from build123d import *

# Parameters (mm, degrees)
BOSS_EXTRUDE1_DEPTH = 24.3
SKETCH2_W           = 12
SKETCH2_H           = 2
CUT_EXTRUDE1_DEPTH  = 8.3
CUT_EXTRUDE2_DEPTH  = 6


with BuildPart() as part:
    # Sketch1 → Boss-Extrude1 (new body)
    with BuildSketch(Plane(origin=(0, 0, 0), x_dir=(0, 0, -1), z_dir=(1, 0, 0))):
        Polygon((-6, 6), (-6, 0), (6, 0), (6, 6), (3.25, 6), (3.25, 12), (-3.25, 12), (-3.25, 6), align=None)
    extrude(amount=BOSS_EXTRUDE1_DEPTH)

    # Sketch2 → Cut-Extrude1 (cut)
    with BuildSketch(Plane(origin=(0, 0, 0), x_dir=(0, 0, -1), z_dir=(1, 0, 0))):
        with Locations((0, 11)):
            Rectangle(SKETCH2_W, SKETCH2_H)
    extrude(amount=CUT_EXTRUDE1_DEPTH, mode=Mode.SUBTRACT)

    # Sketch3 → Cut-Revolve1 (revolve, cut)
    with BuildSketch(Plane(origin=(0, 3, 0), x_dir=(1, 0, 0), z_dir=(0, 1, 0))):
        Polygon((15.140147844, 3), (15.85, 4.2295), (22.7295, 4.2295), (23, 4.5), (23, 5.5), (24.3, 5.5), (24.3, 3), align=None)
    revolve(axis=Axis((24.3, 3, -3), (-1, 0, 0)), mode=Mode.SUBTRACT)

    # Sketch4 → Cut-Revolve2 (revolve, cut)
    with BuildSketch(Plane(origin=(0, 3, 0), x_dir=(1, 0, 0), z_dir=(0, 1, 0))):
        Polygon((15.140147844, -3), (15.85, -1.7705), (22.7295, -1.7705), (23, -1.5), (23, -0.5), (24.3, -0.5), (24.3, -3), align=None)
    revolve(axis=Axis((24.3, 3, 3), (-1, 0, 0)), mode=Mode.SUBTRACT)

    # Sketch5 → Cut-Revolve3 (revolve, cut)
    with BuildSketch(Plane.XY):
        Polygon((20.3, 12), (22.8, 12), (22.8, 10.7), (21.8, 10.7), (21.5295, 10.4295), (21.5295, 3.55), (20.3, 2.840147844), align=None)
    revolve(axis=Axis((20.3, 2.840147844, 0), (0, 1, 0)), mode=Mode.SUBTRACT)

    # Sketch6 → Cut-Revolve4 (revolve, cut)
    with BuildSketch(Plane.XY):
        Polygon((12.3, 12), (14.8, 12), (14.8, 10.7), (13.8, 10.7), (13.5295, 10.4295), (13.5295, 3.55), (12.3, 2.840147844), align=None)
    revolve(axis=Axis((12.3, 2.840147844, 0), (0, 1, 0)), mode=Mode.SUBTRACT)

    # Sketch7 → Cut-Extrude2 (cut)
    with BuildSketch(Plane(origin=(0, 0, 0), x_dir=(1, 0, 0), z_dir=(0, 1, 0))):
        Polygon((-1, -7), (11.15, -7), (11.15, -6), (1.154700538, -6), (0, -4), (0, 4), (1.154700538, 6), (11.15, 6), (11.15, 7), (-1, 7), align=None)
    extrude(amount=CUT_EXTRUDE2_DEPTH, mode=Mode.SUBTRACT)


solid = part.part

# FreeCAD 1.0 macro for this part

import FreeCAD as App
import Part
import Sketcher
Q = App.Units.Quantity


def add_polygon(sketch, points):
    """Adds a closed chain of lines whose ends are joined by coincident constraints."""
    first, n = sketch.GeometryCount, len(points)
    for a, b in zip(points, points[1:] + points[:1]):
        sketch.addGeometry(Part.LineSegment(App.Vector(*a, 0), App.Vector(*b, 0)), False)
    for i in range(n):
        sketch.addConstraint(Sketcher.Constraint("Coincident", first + i, 2, first + (i + 1) % n, 1))

doc = App.newDocument("Part")
params = doc.addObject("Spreadsheet::Sheet", "Params")
for row, (alias, value) in enumerate([
    ("sketch1_width", "6 mm"),
    ("sketch1_height", "12 mm"),
    ("sketch1_height2", "6.5 mm"),
    ("pad1_length", "24.3 mm"),
    ("sketch2_width", "2 mm"),
    ("sketch2_height", "12 mm"),
    ("pocket1_length", "8.3 mm"),
    ("sketch3_height", "1 mm"),
    ("sketch3_width", "1.3 mm"),
    ("sketch3_height2", "2.5 mm"),
    ("groove_angle", "360 deg"),
    ("sketch4_height", "1 mm"),
    ("sketch4_width", "1.3 mm"),
    ("sketch4_height2", "2.5 mm"),
    ("groove2_angle", "360 deg"),
    ("sketch5_width", "1 mm"),
    ("sketch5_width2", "2.5 mm"),
    ("sketch5_height", "1.3 mm"),
    ("groove3_angle", "360 deg"),
    ("sketch6_width", "1 mm"),
    ("sketch6_width2", "2.5 mm"),
    ("sketch6_height", "1.3 mm"),
    ("groove4_angle", "360 deg"),
    ("sketch7_height", "1 mm"),
    ("sketch7_height2", "8 mm"),
    ("sketch7_height3", "14 mm"),
    ("sketch7_width", "12.15 mm"),
    ("pocket2_length", "6 mm"),
], start=1):
    params.set(f"A{row}", alias)
    params.set(f"B{row}", "=" + value)
    params.setAlias(f"B{row}", alias)

body = doc.addObject("PartDesign::Body", "Body")

sketch1 = doc.addObject("Sketcher::SketchObject", "Sketch")
body.addObject(sketch1)
sketch1.AttachmentSupport = (doc.YZ_Plane, [""])
sketch1.MapMode = "FlatFace"
add_polygon(sketch1, [(6, 6), (0, 6), (0, -6), (6, -6), (6, -3.2), (12, -3.2), (12, 3.2), (6, 3.2)])
sketch1.addConstraint(Sketcher.Constraint("Horizontal", 0))
sketch1.addConstraint(Sketcher.Constraint("Vertical", 1))
sketch1.addConstraint(Sketcher.Constraint("Horizontal", 2))
sketch1.addConstraint(Sketcher.Constraint("Vertical", 3))
sketch1.addConstraint(Sketcher.Constraint("Horizontal", 4))
sketch1.addConstraint(Sketcher.Constraint("Vertical", 5))
sketch1.addConstraint(Sketcher.Constraint("Horizontal", 6))
sketch1.addConstraint(Sketcher.Constraint("Vertical", 7))
sketch1.addConstraint(Sketcher.Constraint("Symmetric", 0, 2, 1, 2, -1, 1))
sketch1.addConstraint(Sketcher.Constraint("Symmetric", 3, 2, 6, 2, -1))
sketch1.addConstraint(Sketcher.Constraint("Equal", 2, 4))
sketch1.addConstraint(Sketcher.Constraint("DistanceX", 0, 2, 0, 1, 6.0))
sketch1.addConstraint(Sketcher.Constraint("DistanceY", 1, 2, 1, 1, 12.0))
sketch1.addConstraint(Sketcher.Constraint("DistanceY", 5, 1, 5, 2, 6.5))
sketch1.setExpression("Constraints[19]", "Params.sketch1_width")
sketch1.setExpression("Constraints[20]", "Params.sketch1_height")
sketch1.setExpression("Constraints[21]", "Params.sketch1_height2")
pad1 = doc.addObject("PartDesign::Pad", "Pad")
body.addObject(pad1)
pad1.Profile = sketch1
pad1.setExpression("Length", "Params.pad1_length")

sketch2 = doc.addObject("Sketcher::SketchObject", "Sketch001")
body.addObject(sketch2)
sketch2.AttachmentSupport = (doc.YZ_Plane, [""])
sketch2.MapMode = "FlatFace"
add_polygon(sketch2, [(12, 6), (10, 6), (10, -6), (12, -6)])
sketch2.addConstraint(Sketcher.Constraint("Horizontal", 0))
sketch2.addConstraint(Sketcher.Constraint("Vertical", 1))
sketch2.addConstraint(Sketcher.Constraint("Horizontal", 2))
sketch2.addConstraint(Sketcher.Constraint("Vertical", 3))
sketch2.addConstraint(Sketcher.Constraint("DistanceX", 0, 2, 0, 1, 2.0))
sketch2.addConstraint(Sketcher.Constraint("DistanceY", 1, 2, 1, 1, 12.0))
sketch2.addConstraint(Sketcher.Constraint("DistanceX", -1, 1, 0, 2, 10.0))
sketch2.addConstraint(Sketcher.Constraint("DistanceY", -1, 1, 0, 2, 6.0))
sketch2.setExpression("Constraints[8]", "Params.sketch2_width")
sketch2.setExpression("Constraints[9]", "Params.sketch2_height")
pocket1 = doc.addObject("PartDesign::Pocket", "Pocket")
body.addObject(pocket1)
pocket1.Profile = sketch2
pocket1.setExpression("Length", "Params.pocket1_length")
pocket1.Reversed = True

sketch3 = doc.addObject("Sketcher::SketchObject", "Sketch002")
body.addObject(sketch3)
sketch3.AttachmentSupport = (doc.XZ_Plane, [""])
sketch3.MapMode = "FlatFace"
sketch3.AttachmentOffset = App.Placement(App.Vector(0, 0, -3), App.Rotation())
add_polygon(sketch3, [(15.85, -4.23), (15.14, -3), (24.3, -3), (24.3, -5.5), (23, -5.5), (23, -4.5), (22.73, -4.23)])
sketch3.addGeometry(Part.LineSegment(App.Vector(24.3, -3, 0), App.Vector(15.14, -3, 0)), True)
sketch3.addConstraint(Sketcher.Constraint("Horizontal", 1))
sketch3.addConstraint(Sketcher.Constraint("Vertical", 2))
sketch3.addConstraint(Sketcher.Constraint("Horizontal", 3))
sketch3.addConstraint(Sketcher.Constraint("Vertical", 4))
sketch3.addConstraint(Sketcher.Constraint("Horizontal", 6))
sketch3.addConstraint(Sketcher.Constraint("Horizontal", 7))
sketch3.addConstraint(Sketcher.Constraint("Coincident", 7, 1, 1, 2))
sketch3.addConstraint(Sketcher.Constraint("Equal", 1, 7))
sketch3.addConstraint(Sketcher.Constraint("DistanceY", 4, 1, 4, 2, 1.0))
sketch3.addConstraint(Sketcher.Constraint("Angle", 0, Q("120 deg")))
sketch3.addConstraint(Sketcher.Constraint("Angle", 5, Q("135 deg")))
sketch3.addConstraint(Sketcher.Constraint("DistanceX", 3, 2, 3, 1, 1.3))
sketch3.addConstraint(Sketcher.Constraint("DistanceY", 2, 2, 2, 1, 2.5))
sketch3.addConstraint(Sketcher.Constraint("DistanceY", 0, 2, -1, 1, 3.0))
sketch3.addConstraint(Sketcher.Constraint("DistanceX", -1, 1, 3, 2, 23.0))
sketch3.addConstraint(Sketcher.Constraint("DistanceX", -1, 1, 6, 2, 15.85))
sketch3.addConstraint(Sketcher.Constraint("DistanceX", 6, 2, 6, 1, 6.8795))
sketch3.setExpression("Constraints[15]", "Params.sketch3_height")
sketch3.setExpression("Constraints[18]", "Params.sketch3_width")
sketch3.setExpression("Constraints[19]", "Params.sketch3_height2")
groove = doc.addObject("PartDesign::Groove", "Groove")
body.addObject(groove)
groove.Profile = sketch3
groove.ReferenceAxis = (sketch3, ["Axis0"])
groove.setExpression("Angle", "Params.groove_angle")

sketch4 = doc.addObject("Sketcher::SketchObject", "Sketch003")
body.addObject(sketch4)
sketch4.AttachmentSupport = (doc.XZ_Plane, [""])
sketch4.MapMode = "FlatFace"
sketch4.AttachmentOffset = App.Placement(App.Vector(0, 0, -3), App.Rotation())
add_polygon(sketch4, [(15.85, 1.77), (15.14, 3), (24.3, 3), (24.3, 0.5), (23, 0.5), (23, 1.5), (22.73, 1.77)])
sketch4.addGeometry(Part.LineSegment(App.Vector(24.3, 3, 0), App.Vector(15.14, 3, 0)), True)
sketch4.addConstraint(Sketcher.Constraint("Horizontal", 1))
sketch4.addConstraint(Sketcher.Constraint("Vertical", 2))
sketch4.addConstraint(Sketcher.Constraint("Horizontal", 3))
sketch4.addConstraint(Sketcher.Constraint("Vertical", 4))
sketch4.addConstraint(Sketcher.Constraint("Horizontal", 6))
sketch4.addConstraint(Sketcher.Constraint("Horizontal", 7))
sketch4.addConstraint(Sketcher.Constraint("Coincident", 7, 1, 1, 2))
sketch4.addConstraint(Sketcher.Constraint("Equal", 1, 7))
sketch4.addConstraint(Sketcher.Constraint("DistanceY", 4, 1, 4, 2, 1.0))
sketch4.addConstraint(Sketcher.Constraint("Angle", 0, Q("120 deg")))
sketch4.addConstraint(Sketcher.Constraint("Angle", 5, Q("135 deg")))
sketch4.addConstraint(Sketcher.Constraint("DistanceX", 3, 2, 3, 1, 1.3))
sketch4.addConstraint(Sketcher.Constraint("DistanceY", 2, 2, 2, 1, 2.5))
sketch4.addConstraint(Sketcher.Constraint("DistanceY", -1, 1, 0, 2, 3.0))
sketch4.addConstraint(Sketcher.Constraint("DistanceX", -1, 1, 3, 2, 23.0))
sketch4.addConstraint(Sketcher.Constraint("DistanceX", -1, 1, 6, 2, 15.85))
sketch4.addConstraint(Sketcher.Constraint("DistanceX", 6, 2, 6, 1, 6.8795))
sketch4.setExpression("Constraints[15]", "Params.sketch4_height")
sketch4.setExpression("Constraints[18]", "Params.sketch4_width")
sketch4.setExpression("Constraints[19]", "Params.sketch4_height2")
groove2 = doc.addObject("PartDesign::Groove", "Groove001")
body.addObject(groove2)
groove2.Profile = sketch4
groove2.ReferenceAxis = (sketch4, ["Axis0"])
groove2.setExpression("Angle", "Params.groove2_angle")

sketch5 = doc.addObject("Sketcher::SketchObject", "Sketch004")
body.addObject(sketch5)
sketch5.AttachmentSupport = (doc.XY_Plane, [""])
sketch5.MapMode = "FlatFace"
add_polygon(sketch5, [(22.8, 12), (20.3, 12), (20.3, 2.84), (21.53, 3.55), (21.53, 10.43), (21.8, 10.7), (22.8, 10.7)])
sketch5.addGeometry(Part.LineSegment(App.Vector(20.3, 2.84, 0), App.Vector(20.3, 12, 0)), True)
sketch5.addConstraint(Sketcher.Constraint("Horizontal", 0))
sketch5.addConstraint(Sketcher.Constraint("Vertical", 1))
sketch5.addConstraint(Sketcher.Constraint("Vertical", 3))
sketch5.addConstraint(Sketcher.Constraint("Horizontal", 5))
sketch5.addConstraint(Sketcher.Constraint("Vertical", 6))
sketch5.addConstraint(Sketcher.Constraint("Vertical", 7))
sketch5.addConstraint(Sketcher.Constraint("Coincident", 7, 1, 1, 2))
sketch5.addConstraint(Sketcher.Constraint("Horizontal", 6, 2, 7, 2))
sketch5.addConstraint(Sketcher.Constraint("DistanceX", 5, 1, 5, 2, 1.0))
sketch5.addConstraint(Sketcher.Constraint("Angle", 2, Q("30 deg")))
sketch5.addConstraint(Sketcher.Constraint("Angle", 4, Q("45 deg")))
sketch5.addConstraint(Sketcher.Constraint("DistanceX", 0, 2, 0, 1, 2.5))
sketch5.addConstraint(Sketcher.Constraint("DistanceY", 6, 1, 6, 2, 1.3))
sketch5.addConstraint(Sketcher.Constraint("DistanceY", -1, 1, 0, 2, 12.0))
sketch5.addConstraint(Sketcher.Constraint("DistanceX", -1, 1, 0, 2, 20.3))
sketch5.addConstraint(Sketcher.Constraint("DistanceY", -1, 1, 2, 2, 3.55))
sketch5.addConstraint(Sketcher.Constraint("DistanceY", 3, 1, 3, 2, 6.8795))
sketch5.setExpression("Constraints[15]", "Params.sketch5_width")
sketch5.setExpression("Constraints[18]", "Params.sketch5_width2")
sketch5.setExpression("Constraints[19]", "Params.sketch5_height")
groove3 = doc.addObject("PartDesign::Groove", "Groove002")
body.addObject(groove3)
groove3.Profile = sketch5
groove3.ReferenceAxis = (sketch5, ["Axis0"])
groove3.setExpression("Angle", "Params.groove3_angle")

sketch6 = doc.addObject("Sketcher::SketchObject", "Sketch005")
body.addObject(sketch6)
sketch6.AttachmentSupport = (doc.XY_Plane, [""])
sketch6.MapMode = "FlatFace"
add_polygon(sketch6, [(14.8, 12), (12.3, 12), (12.3, 2.84), (13.53, 3.55), (13.53, 10.43), (13.8, 10.7), (14.8, 10.7)])
sketch6.addGeometry(Part.LineSegment(App.Vector(12.3, 2.84, 0), App.Vector(12.3, 12, 0)), True)
sketch6.addConstraint(Sketcher.Constraint("Horizontal", 0))
sketch6.addConstraint(Sketcher.Constraint("Vertical", 1))
sketch6.addConstraint(Sketcher.Constraint("Vertical", 3))
sketch6.addConstraint(Sketcher.Constraint("Horizontal", 5))
sketch6.addConstraint(Sketcher.Constraint("Vertical", 6))
sketch6.addConstraint(Sketcher.Constraint("Vertical", 7))
sketch6.addConstraint(Sketcher.Constraint("Coincident", 7, 1, 1, 2))
sketch6.addConstraint(Sketcher.Constraint("Horizontal", 6, 2, 7, 2))
sketch6.addConstraint(Sketcher.Constraint("DistanceX", 5, 1, 5, 2, 1.0))
sketch6.addConstraint(Sketcher.Constraint("Angle", 2, Q("30 deg")))
sketch6.addConstraint(Sketcher.Constraint("Angle", 4, Q("45 deg")))
sketch6.addConstraint(Sketcher.Constraint("DistanceX", 0, 2, 0, 1, 2.5))
sketch6.addConstraint(Sketcher.Constraint("DistanceY", 6, 1, 6, 2, 1.3))
sketch6.addConstraint(Sketcher.Constraint("DistanceY", -1, 1, 0, 2, 12.0))
sketch6.addConstraint(Sketcher.Constraint("DistanceX", -1, 1, 0, 2, 12.3))
sketch6.addConstraint(Sketcher.Constraint("DistanceY", -1, 1, 2, 2, 3.55))
sketch6.addConstraint(Sketcher.Constraint("DistanceY", 3, 1, 3, 2, 6.8795))
sketch6.setExpression("Constraints[15]", "Params.sketch6_width")
sketch6.setExpression("Constraints[18]", "Params.sketch6_width2")
sketch6.setExpression("Constraints[19]", "Params.sketch6_height")
groove4 = doc.addObject("PartDesign::Groove", "Groove003")
body.addObject(groove4)
groove4.Profile = sketch6
groove4.ReferenceAxis = (sketch6, ["Axis0"])
groove4.setExpression("Angle", "Params.groove4_angle")

sketch7 = doc.addObject("Sketcher::SketchObject", "Sketch006")
body.addObject(sketch7)
sketch7.AttachmentSupport = (doc.XZ_Plane, [""])
sketch7.MapMode = "FlatFace"
add_polygon(sketch7, [(-1, 7), (11.2, 7), (11.2, 6), (1.2, 6), (0, 4), (0, -4), (1.2, -6), (11.2, -6), (11.2, -7), (-1, -7)])
sketch7.addConstraint(Sketcher.Constraint("Horizontal", 0))
sketch7.addConstraint(Sketcher.Constraint("Vertical", 1))
sketch7.addConstraint(Sketcher.Constraint("Horizontal", 2))
sketch7.addConstraint(Sketcher.Constraint("Vertical", 4))
sketch7.addConstraint(Sketcher.Constraint("Horizontal", 6))
sketch7.addConstraint(Sketcher.Constraint("Vertical", 7))
sketch7.addConstraint(Sketcher.Constraint("Horizontal", 8))
sketch7.addConstraint(Sketcher.Constraint("Vertical", 9))
sketch7.addConstraint(Sketcher.Constraint("Symmetric", 3, 2, 4, 2, -1, 1))
sketch7.addConstraint(Sketcher.Constraint("Symmetric", 2, 2, 5, 2, -1))
sketch7.addConstraint(Sketcher.Constraint("Symmetric", 0, 2, 7, 2, -1))
sketch7.addConstraint(Sketcher.Constraint("DistanceY", 1, 2, 1, 1, 1.0))
sketch7.addConstraint(Sketcher.Constraint("DistanceY", 4, 2, 4, 1, 8.0))
sketch7.addConstraint(Sketcher.Constraint("DistanceY", 9, 1, 9, 2, 14.0))
sketch7.addConstraint(Sketcher.Constraint("Angle", 3, Q("-120 deg")))
sketch7.addConstraint(Sketcher.Constraint("DistanceX", 8, 2, -1, 1, 1.0))
sketch7.addConstraint(Sketcher.Constraint("DistanceX", 0, 1, 0, 2, 12.15))
sketch7.setExpression("Constraints[21]", "Params.sketch7_height")
sketch7.setExpression("Constraints[22]", "Params.sketch7_height2")
sketch7.setExpression("Constraints[23]", "Params.sketch7_height3")
sketch7.setExpression("Constraints[26]", "Params.sketch7_width")
pocket2 = doc.addObject("PartDesign::Pocket", "Pocket001")
body.addObject(pocket2)
pocket2.Profile = sketch7
pocket2.setExpression("Length", "Params.pocket2_length")

doc.recompute()
